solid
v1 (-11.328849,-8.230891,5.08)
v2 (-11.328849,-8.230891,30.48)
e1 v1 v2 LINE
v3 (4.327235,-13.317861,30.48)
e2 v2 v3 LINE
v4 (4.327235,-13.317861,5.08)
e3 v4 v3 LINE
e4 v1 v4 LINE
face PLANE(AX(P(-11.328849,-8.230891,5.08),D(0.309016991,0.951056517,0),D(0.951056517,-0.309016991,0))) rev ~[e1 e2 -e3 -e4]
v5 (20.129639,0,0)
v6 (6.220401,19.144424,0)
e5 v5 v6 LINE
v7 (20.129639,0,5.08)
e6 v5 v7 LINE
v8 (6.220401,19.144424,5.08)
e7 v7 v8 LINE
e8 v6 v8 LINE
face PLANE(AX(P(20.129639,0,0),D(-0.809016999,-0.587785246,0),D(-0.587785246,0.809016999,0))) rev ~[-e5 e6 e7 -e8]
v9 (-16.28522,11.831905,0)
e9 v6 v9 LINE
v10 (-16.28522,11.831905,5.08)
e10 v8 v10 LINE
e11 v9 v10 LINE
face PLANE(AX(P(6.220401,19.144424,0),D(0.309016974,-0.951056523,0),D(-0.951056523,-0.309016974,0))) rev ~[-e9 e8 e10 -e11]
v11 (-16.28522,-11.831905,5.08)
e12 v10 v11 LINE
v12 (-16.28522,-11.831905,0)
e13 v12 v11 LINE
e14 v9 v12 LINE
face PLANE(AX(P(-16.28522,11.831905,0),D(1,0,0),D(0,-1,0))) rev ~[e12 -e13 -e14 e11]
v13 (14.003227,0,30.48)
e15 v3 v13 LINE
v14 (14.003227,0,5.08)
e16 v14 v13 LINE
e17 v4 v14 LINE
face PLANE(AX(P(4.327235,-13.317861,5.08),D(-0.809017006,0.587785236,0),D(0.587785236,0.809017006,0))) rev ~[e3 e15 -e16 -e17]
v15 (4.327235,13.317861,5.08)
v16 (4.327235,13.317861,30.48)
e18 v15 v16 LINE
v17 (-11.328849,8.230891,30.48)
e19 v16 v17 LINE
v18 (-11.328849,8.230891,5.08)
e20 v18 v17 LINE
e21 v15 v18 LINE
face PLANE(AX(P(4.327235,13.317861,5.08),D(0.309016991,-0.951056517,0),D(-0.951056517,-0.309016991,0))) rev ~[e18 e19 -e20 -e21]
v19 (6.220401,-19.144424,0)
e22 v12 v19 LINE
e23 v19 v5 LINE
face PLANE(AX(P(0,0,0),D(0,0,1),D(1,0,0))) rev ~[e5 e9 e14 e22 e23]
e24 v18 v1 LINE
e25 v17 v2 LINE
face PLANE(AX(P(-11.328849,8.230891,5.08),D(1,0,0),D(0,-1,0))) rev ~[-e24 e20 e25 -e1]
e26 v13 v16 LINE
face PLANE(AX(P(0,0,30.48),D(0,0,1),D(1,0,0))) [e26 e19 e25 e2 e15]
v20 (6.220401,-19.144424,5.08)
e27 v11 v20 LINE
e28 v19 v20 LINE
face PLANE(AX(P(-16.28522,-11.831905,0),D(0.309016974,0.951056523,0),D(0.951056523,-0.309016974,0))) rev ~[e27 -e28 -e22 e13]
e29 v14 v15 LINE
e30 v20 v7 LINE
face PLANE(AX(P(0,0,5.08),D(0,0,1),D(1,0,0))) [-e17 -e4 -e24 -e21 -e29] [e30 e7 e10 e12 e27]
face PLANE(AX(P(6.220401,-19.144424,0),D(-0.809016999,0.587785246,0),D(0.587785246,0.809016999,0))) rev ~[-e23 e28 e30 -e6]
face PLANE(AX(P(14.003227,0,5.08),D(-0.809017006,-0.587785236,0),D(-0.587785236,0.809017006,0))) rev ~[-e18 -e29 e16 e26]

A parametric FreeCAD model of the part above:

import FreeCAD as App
import Part
import Sketcher
Q = App.Units.Quantity

doc = App.newDocument("Part")
body = doc.addObject("PartDesign::Body", "Body")

# Sketch on XY plane
sketch1 = body.newObject("Sketcher::SketchObject", "Sketch")
sketch1.AttachmentSupport = (doc.getObject("XY_Plane"), [""])
sketch1.MapMode = "FlatFace"
sketch1.addGeometry([
    Part.LineSegment(App.Vector(-16, 12, 0), App.Vector(-16, -12, 0)),  # 0
    Part.LineSegment(App.Vector(-16, -12, 0), App.Vector(6, -19, 0)),  # 1
    Part.LineSegment(App.Vector(6, -19, 0), App.Vector(20, 0, 0)),  # 2
    Part.LineSegment(App.Vector(20, 0, 0), App.Vector(6, 19, 0)),  # 3
    Part.LineSegment(App.Vector(6, 19, 0), App.Vector(-16, 12, 0)),  # 4
], False)
sketch1.addConstraint([
    Sketcher.Constraint("Coincident", 0, 2, 1, 1),
    Sketcher.Constraint("Coincident", 1, 2, 2, 1),
    Sketcher.Constraint("Coincident", 2, 2, 3, 1),
    Sketcher.Constraint("Coincident", 3, 2, 4, 1),
    Sketcher.Constraint("Coincident", 4, 2, 0, 1),
    Sketcher.Constraint("Vertical", 0),
    Sketcher.Constraint("Symmetric", 1, 2, 3, 2, -1),
    Sketcher.Constraint("PointOnObject", 2, 2, -1),
    Sketcher.Constraint("Equal", 1, 2),
    Sketcher.Constraint("Equal", 3, 4),
    Sketcher.Constraint("Angle", 1, Q("-17.999999 deg")),
    Sketcher.Constraint("Angle", 2, Q("54 deg")),
    Sketcher.Constraint("DistanceY", 0, 2, 0, 1, 23.66381),
    Sketcher.Constraint("DistanceX", -1, 1, 1, 2, 6.220401),
])
pad1 = body.newObject("PartDesign::Pad", "Pad")
pad1.Profile = sketch1
pad1.Length = Q("0.2 in")

# Sketch on XY plane
sketch2 = body.newObject("Sketcher::SketchObject", "Sketch001")
sketch2.AttachmentSupport = (doc.getObject("XY_Plane"), [""])
sketch2.MapMode = "FlatFace"
sketch2.AttachmentOffset = App.Placement(App.Vector(0, 0, 0.2 * 25.4), App.Rotation())
sketch2.addGeometry([
    Part.LineSegment(App.Vector(-11, 8, 0), App.Vector(-11, -8, 0)),  # 0
    Part.LineSegment(App.Vector(-11, -8, 0), App.Vector(4, -13, 0)),  # 1
    Part.LineSegment(App.Vector(4, -13, 0), App.Vector(14, 0, 0)),  # 2
    Part.LineSegment(App.Vector(14, 0, 0), App.Vector(4, 13, 0)),  # 3
    Part.LineSegment(App.Vector(4, 13, 0), App.Vector(-11, 8, 0)),  # 4
], False)
sketch2.addConstraint([
    Sketcher.Constraint("Coincident", 0, 2, 1, 1),
    Sketcher.Constraint("Coincident", 1, 2, 2, 1),
    Sketcher.Constraint("Coincident", 2, 2, 3, 1),
    Sketcher.Constraint("Coincident", 3, 2, 4, 1),
    Sketcher.Constraint("Coincident", 4, 2, 0, 1),
    Sketcher.Constraint("Vertical", 0),
    Sketcher.Constraint("Symmetric", 1, 2, 3, 2, -1),
    Sketcher.Constraint("PointOnObject", 2, 2, -1),
    Sketcher.Constraint("Equal", 1, 2),
    Sketcher.Constraint("Equal", 3, 4),
    Sketcher.Constraint("Angle", 1, Q("-18 deg")),
    Sketcher.Constraint("Angle", 2, Q("54.000001 deg")),
    Sketcher.Constraint("DistanceY", 0, 2, 0, 1, 16.461782),
    Sketcher.Constraint("DistanceX", 0, 2, -1, 1, 11.328849),
])
pad2 = body.newObject("PartDesign::Pad", "Pad001")
pad2.Profile = sketch2
pad2.Length = Q("1 in")

doc.recompute()
